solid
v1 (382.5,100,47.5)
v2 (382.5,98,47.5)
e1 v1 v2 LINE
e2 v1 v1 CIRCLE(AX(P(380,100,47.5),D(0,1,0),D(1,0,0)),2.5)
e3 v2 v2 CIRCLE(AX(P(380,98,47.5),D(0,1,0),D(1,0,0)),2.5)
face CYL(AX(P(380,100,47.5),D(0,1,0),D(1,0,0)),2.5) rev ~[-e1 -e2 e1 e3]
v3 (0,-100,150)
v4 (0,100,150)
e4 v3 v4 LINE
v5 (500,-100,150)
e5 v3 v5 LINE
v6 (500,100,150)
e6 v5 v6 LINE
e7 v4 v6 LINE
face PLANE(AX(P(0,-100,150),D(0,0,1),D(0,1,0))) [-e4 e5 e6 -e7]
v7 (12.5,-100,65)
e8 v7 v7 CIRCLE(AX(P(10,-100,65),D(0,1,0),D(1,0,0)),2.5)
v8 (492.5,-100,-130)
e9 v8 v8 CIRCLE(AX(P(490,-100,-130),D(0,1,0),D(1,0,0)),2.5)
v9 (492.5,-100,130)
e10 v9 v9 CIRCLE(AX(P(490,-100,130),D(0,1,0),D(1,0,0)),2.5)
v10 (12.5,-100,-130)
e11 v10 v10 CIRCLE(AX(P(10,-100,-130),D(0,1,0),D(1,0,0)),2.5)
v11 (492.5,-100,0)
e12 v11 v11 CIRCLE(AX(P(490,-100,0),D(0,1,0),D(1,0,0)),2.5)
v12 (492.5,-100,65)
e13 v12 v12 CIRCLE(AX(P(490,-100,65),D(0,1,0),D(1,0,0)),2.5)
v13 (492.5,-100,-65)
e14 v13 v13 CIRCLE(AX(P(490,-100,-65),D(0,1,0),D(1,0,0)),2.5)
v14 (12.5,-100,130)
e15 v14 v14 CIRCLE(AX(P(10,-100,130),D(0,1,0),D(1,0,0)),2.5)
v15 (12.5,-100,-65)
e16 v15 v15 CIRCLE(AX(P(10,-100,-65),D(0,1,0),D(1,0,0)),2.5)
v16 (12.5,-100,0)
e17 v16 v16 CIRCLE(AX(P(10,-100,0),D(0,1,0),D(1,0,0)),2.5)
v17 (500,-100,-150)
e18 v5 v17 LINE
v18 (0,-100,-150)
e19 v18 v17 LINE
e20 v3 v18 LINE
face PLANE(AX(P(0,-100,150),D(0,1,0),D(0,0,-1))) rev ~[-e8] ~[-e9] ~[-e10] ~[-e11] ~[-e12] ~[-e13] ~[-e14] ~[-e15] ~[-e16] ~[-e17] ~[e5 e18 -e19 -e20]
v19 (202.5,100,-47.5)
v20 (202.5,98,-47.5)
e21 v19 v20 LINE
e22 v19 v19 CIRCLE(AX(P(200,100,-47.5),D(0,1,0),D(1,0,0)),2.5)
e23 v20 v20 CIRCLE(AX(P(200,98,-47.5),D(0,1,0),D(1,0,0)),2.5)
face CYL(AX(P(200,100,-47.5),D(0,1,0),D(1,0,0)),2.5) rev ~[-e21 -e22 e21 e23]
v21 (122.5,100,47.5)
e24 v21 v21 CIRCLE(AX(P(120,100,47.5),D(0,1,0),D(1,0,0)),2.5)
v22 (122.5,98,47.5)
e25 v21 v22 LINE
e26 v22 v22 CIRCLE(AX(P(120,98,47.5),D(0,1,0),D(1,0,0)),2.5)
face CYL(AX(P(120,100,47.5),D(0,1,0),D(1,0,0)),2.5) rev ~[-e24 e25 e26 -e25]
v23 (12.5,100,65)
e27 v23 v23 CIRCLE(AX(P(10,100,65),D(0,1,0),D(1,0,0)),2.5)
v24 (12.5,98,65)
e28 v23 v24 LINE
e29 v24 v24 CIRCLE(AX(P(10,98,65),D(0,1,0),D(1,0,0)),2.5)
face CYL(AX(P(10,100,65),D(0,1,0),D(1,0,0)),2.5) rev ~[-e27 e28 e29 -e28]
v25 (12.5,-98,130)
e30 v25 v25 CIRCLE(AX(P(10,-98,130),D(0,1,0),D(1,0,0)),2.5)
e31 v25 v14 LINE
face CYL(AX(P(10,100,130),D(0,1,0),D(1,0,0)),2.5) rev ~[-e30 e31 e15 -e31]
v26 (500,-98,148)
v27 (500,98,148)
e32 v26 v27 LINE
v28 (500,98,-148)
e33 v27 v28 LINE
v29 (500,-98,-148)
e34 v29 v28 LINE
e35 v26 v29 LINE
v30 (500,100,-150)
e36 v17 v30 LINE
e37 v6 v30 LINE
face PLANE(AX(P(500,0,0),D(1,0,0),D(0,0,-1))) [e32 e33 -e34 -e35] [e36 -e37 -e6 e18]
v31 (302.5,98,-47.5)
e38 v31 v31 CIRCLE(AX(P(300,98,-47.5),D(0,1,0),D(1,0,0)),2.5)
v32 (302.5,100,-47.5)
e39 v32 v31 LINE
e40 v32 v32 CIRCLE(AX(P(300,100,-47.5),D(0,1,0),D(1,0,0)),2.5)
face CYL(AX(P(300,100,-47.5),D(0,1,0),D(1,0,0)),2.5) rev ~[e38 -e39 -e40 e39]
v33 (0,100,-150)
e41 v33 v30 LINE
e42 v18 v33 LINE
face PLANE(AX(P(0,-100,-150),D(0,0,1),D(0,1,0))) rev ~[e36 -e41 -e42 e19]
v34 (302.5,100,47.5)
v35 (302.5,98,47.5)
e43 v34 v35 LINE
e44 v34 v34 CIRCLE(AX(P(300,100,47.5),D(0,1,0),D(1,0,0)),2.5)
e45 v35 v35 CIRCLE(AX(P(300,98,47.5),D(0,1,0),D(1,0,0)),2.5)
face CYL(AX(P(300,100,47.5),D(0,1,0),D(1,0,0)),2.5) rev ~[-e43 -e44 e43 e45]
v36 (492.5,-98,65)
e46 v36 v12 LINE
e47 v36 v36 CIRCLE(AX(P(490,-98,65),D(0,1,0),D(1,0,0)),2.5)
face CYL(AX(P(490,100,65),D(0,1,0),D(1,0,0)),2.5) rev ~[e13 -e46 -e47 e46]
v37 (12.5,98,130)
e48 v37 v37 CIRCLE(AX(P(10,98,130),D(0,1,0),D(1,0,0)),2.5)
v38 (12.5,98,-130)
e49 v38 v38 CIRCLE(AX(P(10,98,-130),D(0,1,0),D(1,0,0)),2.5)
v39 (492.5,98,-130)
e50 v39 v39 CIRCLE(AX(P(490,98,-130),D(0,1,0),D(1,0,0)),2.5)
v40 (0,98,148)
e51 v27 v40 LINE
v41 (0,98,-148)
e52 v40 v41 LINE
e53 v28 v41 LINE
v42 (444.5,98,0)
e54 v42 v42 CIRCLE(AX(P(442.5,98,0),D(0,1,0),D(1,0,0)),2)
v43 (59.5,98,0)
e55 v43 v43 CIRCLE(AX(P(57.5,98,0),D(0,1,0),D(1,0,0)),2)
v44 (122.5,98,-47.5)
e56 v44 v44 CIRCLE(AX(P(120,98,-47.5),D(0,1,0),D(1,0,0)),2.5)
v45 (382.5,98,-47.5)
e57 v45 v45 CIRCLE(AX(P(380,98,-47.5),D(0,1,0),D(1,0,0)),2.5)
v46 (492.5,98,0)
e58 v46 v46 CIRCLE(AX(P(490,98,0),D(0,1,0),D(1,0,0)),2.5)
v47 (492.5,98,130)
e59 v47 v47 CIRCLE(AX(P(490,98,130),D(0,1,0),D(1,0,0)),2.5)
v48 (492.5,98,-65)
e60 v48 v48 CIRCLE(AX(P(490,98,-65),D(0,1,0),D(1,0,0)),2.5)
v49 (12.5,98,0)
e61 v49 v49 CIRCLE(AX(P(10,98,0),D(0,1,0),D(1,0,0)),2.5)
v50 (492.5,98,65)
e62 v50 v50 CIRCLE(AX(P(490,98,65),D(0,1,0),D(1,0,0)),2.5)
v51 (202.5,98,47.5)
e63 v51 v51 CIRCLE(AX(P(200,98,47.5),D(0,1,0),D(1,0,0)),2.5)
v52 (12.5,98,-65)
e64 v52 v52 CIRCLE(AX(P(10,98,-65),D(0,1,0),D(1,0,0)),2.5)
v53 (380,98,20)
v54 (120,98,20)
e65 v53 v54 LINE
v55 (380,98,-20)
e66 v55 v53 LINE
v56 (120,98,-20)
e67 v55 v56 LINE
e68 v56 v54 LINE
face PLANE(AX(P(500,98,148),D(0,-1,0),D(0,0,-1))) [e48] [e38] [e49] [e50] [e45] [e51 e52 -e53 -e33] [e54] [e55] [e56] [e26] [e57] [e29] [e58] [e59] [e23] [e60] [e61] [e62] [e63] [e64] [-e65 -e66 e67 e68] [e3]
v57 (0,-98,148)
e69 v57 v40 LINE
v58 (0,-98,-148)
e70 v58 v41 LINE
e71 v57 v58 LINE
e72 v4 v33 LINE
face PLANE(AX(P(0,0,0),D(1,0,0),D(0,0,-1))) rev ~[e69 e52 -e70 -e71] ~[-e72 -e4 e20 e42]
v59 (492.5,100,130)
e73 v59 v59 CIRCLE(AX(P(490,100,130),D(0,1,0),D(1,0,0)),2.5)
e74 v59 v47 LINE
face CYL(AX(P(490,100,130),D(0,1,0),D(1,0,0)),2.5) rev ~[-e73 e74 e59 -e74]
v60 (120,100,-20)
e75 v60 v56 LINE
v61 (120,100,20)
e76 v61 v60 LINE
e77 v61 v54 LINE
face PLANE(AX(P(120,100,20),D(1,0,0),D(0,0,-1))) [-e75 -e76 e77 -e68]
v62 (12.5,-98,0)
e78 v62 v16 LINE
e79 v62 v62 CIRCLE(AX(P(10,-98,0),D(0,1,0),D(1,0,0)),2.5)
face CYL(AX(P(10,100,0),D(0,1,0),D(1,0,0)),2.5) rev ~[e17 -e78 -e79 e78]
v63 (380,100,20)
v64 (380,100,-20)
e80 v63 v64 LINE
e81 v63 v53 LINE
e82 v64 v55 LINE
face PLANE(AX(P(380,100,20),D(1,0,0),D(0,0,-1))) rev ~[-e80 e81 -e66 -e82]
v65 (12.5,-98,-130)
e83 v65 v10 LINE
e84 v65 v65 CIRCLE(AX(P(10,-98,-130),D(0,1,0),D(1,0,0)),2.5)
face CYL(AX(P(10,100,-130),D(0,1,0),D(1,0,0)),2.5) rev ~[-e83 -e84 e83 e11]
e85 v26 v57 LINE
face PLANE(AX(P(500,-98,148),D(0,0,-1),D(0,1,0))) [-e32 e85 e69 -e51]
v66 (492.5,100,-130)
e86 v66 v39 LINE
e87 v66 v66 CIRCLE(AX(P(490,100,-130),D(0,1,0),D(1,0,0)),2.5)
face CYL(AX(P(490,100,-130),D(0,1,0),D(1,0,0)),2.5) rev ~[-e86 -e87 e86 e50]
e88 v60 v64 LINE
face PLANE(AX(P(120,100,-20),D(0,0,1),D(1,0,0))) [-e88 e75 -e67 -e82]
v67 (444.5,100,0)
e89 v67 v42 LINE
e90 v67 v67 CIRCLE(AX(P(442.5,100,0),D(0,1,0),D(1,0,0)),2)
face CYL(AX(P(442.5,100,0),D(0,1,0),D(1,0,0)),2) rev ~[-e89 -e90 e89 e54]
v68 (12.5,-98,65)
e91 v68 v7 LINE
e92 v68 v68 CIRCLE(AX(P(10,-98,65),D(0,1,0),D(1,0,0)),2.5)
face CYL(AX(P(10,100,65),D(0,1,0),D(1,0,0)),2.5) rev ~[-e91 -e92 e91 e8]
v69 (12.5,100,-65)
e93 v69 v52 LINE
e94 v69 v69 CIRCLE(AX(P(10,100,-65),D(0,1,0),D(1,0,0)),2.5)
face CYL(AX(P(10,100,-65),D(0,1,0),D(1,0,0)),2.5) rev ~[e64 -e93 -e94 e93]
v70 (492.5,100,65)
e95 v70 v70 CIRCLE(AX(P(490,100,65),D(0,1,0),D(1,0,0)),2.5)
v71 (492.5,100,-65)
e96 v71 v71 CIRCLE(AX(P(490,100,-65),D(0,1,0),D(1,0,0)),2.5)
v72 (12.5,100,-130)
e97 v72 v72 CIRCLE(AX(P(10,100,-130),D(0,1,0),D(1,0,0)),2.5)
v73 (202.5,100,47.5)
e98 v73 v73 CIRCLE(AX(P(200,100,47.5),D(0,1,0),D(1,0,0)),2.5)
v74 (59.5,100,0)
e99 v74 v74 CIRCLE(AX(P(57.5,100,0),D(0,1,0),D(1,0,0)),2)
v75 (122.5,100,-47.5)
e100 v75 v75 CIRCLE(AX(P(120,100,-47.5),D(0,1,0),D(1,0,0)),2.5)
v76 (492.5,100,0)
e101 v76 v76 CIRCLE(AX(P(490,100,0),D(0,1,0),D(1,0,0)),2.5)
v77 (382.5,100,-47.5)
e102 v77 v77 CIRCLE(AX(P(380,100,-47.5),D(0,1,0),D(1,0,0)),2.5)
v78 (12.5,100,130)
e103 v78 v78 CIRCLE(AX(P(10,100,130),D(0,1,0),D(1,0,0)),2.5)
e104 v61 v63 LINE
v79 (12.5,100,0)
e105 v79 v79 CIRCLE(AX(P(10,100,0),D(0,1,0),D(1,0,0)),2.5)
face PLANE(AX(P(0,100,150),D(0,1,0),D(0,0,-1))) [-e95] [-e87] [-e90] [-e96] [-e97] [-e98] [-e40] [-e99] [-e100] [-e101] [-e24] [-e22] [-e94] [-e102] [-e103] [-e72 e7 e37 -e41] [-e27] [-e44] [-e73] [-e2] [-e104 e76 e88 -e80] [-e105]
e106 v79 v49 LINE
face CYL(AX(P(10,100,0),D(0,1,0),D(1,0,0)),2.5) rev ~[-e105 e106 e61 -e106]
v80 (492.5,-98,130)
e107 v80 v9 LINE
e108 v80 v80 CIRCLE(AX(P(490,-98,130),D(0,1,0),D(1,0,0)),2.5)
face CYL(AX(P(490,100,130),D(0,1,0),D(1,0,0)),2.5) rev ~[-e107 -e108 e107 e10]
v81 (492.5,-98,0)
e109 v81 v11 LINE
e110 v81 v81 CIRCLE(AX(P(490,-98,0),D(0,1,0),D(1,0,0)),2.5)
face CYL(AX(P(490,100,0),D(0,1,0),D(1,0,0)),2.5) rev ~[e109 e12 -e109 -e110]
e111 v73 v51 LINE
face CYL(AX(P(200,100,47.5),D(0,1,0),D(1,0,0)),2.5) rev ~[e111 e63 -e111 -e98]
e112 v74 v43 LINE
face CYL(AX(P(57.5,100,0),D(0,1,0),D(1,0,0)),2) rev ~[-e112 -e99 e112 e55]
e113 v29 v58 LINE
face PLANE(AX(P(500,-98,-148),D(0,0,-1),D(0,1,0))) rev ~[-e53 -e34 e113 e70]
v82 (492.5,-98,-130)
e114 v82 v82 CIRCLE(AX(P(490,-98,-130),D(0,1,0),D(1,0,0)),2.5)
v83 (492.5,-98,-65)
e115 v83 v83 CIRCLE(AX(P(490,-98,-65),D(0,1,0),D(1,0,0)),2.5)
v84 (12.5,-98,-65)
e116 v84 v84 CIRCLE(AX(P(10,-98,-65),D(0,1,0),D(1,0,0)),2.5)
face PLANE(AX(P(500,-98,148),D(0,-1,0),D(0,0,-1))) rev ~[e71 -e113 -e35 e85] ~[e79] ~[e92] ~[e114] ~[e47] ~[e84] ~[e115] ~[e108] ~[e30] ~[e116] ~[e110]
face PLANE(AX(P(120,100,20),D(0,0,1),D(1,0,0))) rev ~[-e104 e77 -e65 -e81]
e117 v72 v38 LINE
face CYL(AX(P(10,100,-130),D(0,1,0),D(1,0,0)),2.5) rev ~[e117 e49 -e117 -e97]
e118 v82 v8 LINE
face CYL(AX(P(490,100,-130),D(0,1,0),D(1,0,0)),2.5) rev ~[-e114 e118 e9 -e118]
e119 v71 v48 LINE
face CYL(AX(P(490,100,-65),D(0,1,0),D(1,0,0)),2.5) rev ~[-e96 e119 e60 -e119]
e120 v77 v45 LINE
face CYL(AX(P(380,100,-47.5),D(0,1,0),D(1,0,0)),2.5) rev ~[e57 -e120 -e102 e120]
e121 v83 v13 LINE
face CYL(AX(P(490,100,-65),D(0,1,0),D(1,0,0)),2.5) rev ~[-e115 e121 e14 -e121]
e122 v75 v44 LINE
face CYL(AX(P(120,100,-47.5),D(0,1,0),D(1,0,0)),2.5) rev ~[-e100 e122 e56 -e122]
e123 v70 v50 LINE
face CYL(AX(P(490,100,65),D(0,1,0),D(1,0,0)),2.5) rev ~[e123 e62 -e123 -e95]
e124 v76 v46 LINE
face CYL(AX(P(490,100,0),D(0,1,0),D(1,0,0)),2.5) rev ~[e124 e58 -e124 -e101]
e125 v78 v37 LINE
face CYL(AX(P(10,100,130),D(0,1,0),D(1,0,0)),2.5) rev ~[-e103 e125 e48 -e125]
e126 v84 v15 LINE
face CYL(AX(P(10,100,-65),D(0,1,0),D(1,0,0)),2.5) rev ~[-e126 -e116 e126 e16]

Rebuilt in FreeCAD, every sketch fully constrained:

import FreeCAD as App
import Part
import Sketcher

V = App.Vector


def add_polygon(sketch, points):
    """Adds a closed chain of lines whose ends are joined by coincident constraints."""
    first, n = sketch.GeometryCount, len(points)
    for a, b in zip(points, points[1:] + points[:1]):
        sketch.addGeometry(Part.LineSegment(App.Vector(*a, 0), App.Vector(*b, 0)), False)
    for i in range(n):
        sketch.addConstraint(Sketcher.Constraint("Coincident", first + i, 2, first + (i + 1) % n, 1))

doc = App.newDocument("Part")
body = doc.addObject("PartDesign::Body", "Body")

# Sketch on YZ plane
sketch1 = doc.addObject("Sketcher::SketchObject", "Sketch")
body.addObject(sketch1)
sketch1.AttachmentSupport = (doc.YZ_Plane, [""])
sketch1.MapMode = "FlatFace"
add_polygon(sketch1, [(100, 150), (-100, 150), (-100, -150), (100, -150)])  # lines 0-3
sketch1.addConstraint(Sketcher.Constraint("Horizontal", 0))
sketch1.addConstraint(Sketcher.Constraint("Vertical", 1))
sketch1.addConstraint(Sketcher.Constraint("Horizontal", 2))
sketch1.addConstraint(Sketcher.Constraint("Vertical", 3))
sketch1.addConstraint(Sketcher.Constraint("Symmetric", 0, 2, 2, 2, -1, 1))
sketch1.addConstraint(Sketcher.Constraint("DistanceX", 0, 2, 0, 1, 200.0))
sketch1.addConstraint(Sketcher.Constraint("DistanceY", 1, 2, 1, 1, 300.0))
pad1 = doc.addObject("PartDesign::Pad", "Pad")
body.addObject(pad1)
pad1.Profile = sketch1
pad1.Length = 500

# Sketch on YZ plane
sketch2 = doc.addObject("Sketcher::SketchObject", "Sketch001")
body.addObject(sketch2)
sketch2.AttachmentSupport = (doc.YZ_Plane, [""])
sketch2.MapMode = "FlatFace"
sketch2.AttachmentOffset = App.Placement(V(0, 0, 500), App.Rotation())
add_polygon(sketch2, [(98, 148), (-98, 148), (-98, -148), (98, -148)])  # lines 0-3
sketch2.addConstraint(Sketcher.Constraint("Horizontal", 0))
sketch2.addConstraint(Sketcher.Constraint("Vertical", 1))
sketch2.addConstraint(Sketcher.Constraint("Horizontal", 2))
sketch2.addConstraint(Sketcher.Constraint("Vertical", 3))
sketch2.addConstraint(Sketcher.Constraint("Symmetric", 0, 2, 2, 2, -1, 1))
sketch2.addConstraint(Sketcher.Constraint("DistanceX", 0, 2, 0, 1, 196.0))
sketch2.addConstraint(Sketcher.Constraint("DistanceY", 1, 2, 1, 1, 296.0))
pocket1 = doc.addObject("PartDesign::Pocket", "Pocket")
body.addObject(pocket1)
pocket1.Profile = sketch2
pocket1.Type = "ThroughAll"

# Sketch on XZ plane
sketch3 = doc.addObject("Sketcher::SketchObject", "Sketch002")
body.addObject(sketch3)
sketch3.AttachmentSupport = (doc.XZ_Plane, [""])
sketch3.MapMode = "FlatFace"
sketch3.AttachmentOffset = App.Placement(V(0, 0, -100), App.Rotation())
sketch3.addGeometry(Part.Circle(V(57.5, 0, 0), V(0, 0, 1), 2), False)  # 0
sketch3.addGeometry(Part.Circle(V(442.5, 0, 0), V(0, 0, 1), 2), False)  # 1
sketch3.addGeometry(Part.Circle(V(120, -47.5, 0), V(0, 0, 1), 2.5), False)  # 2
sketch3.addGeometry(Part.Circle(V(200, -47.5, 0), V(0, 0, 1), 2.5), False)  # 3
sketch3.addGeometry(Part.Circle(V(300, -47.5, 0), V(0, 0, 1), 2.5), False)  # 4
sketch3.addGeometry(Part.Circle(V(380, -47.5, 0), V(0, 0, 1), 2.5), False)  # 5
sketch3.addGeometry(Part.Circle(V(380, 47.5, 0), V(0, 0, 1), 2.5), False)  # 6
sketch3.addGeometry(Part.Circle(V(300, 47.5, 0), V(0, 0, 1), 2.5), False)  # 7
sketch3.addGeometry(Part.Circle(V(200, 47.5, 0), V(0, 0, 1), 2.5), False)  # 8
sketch3.addGeometry(Part.Circle(V(120, 47.5, 0), V(0, 0, 1), 2.5), False)  # 9
add_polygon(sketch3, [(120, -20), (120, 20), (380, 20), (380, -20)])  # lines 10-13
sketch3.addConstraint(Sketcher.Constraint("Vertical", 10))
sketch3.addConstraint(Sketcher.Constraint("Horizontal", 11))
sketch3.addConstraint(Sketcher.Constraint("Vertical", 12))
sketch3.addConstraint(Sketcher.Constraint("Horizontal", 13))
sketch3.addConstraint(Sketcher.Constraint("Equal", 0, 1))
sketch3.addConstraint(Sketcher.Constraint("Equal", 2, 3))
sketch3.addConstraint(Sketcher.Constraint("Equal", 3, 4))
sketch3.addConstraint(Sketcher.Constraint("Equal", 4, 5))
sketch3.addConstraint(Sketcher.Constraint("Equal", 5, 6))
sketch3.addConstraint(Sketcher.Constraint("Equal", 6, 7))
sketch3.addConstraint(Sketcher.Constraint("Equal", 7, 8))
sketch3.addConstraint(Sketcher.Constraint("Equal", 8, 9))
sketch3.addConstraint(Sketcher.Constraint("Symmetric", 5, 3, 6, 3, -1))
sketch3.addConstraint(Sketcher.Constraint("Symmetric", 4, 3, 7, 3, -1))
sketch3.addConstraint(Sketcher.Constraint("Symmetric", 3, 3, 8, 3, -1))
sketch3.addConstraint(Sketcher.Constraint("Symmetric", 2, 3, 9, 3, -1))
sketch3.addConstraint(Sketcher.Constraint("PointOnObject", 0, 3, -1))
sketch3.addConstraint(Sketcher.Constraint("PointOnObject", 1, 3, -1))
sketch3.addConstraint(Sketcher.Constraint("Horizontal", 2, 3, 3, 3))
sketch3.addConstraint(Sketcher.Constraint("Horizontal", 3, 3, 4, 3))
sketch3.addConstraint(Sketcher.Constraint("Horizontal", 4, 3, 5, 3))
sketch3.addConstraint(Sketcher.Constraint("Vertical", 9, 3, 10, 2))
sketch3.addConstraint(Sketcher.Constraint("Vertical", 6, 3, 11, 2))
sketch3.addConstraint(Sketcher.Constraint("Diameter", 0, 4.0))
sketch3.addConstraint(Sketcher.Constraint("Diameter", 2, 5.0))
sketch3.addConstraint(Sketcher.Constraint("DistanceX", 11, 1, 11, 2, 260.0))
sketch3.addConstraint(Sketcher.Constraint("DistanceY", 10, 1, 10, 2, 40.0))
sketch3.addConstraint(Sketcher.Constraint("DistanceX", -1, 1, 2, 3, 120.0))
sketch3.addConstraint(Sketcher.Constraint("DistanceX", -1, 1, 3, 3, 200.0))
sketch3.addConstraint(Sketcher.Constraint("DistanceX", -1, 1, 4, 3, 300.0))
sketch3.addConstraint(Sketcher.Constraint("DistanceY", -1, 1, 10, 2, 20.0))
sketch3.addConstraint(Sketcher.Constraint("DistanceX", 0, 3, 1, 3, 385.0))
sketch3.addConstraint(Sketcher.Constraint("DistanceY", 5, 3, 6, 3, 95.0))
sketch3.addConstraint(Sketcher.Constraint("DistanceX", -1, 1, 0, 3, 57.5))
pocket2 = doc.addObject("PartDesign::Pocket", "Pocket001")
body.addObject(pocket2)
pocket2.Profile = sketch3
pocket2.Length = 10
pocket2.Reversed = True

# Sketch on XZ plane
sketch4 = doc.addObject("Sketcher::SketchObject", "Sketch003")
body.addObject(sketch4)
sketch4.AttachmentSupport = (doc.XZ_Plane, [""])
sketch4.MapMode = "FlatFace"
sketch4.AttachmentOffset = App.Placement(V(0, 0, -100), App.Rotation())
sketch4.addGeometry(Part.Circle(V(490, -130, 0), V(0, 0, 1), 2.5), False)
sketch4.addGeometry(Part.Circle(V(490, -65, 0), V(0, 0, 1), 2.5), False)
sketch4.addGeometry(Part.Circle(V(490, 0, 0), V(0, 0, 1), 2.5), False)
sketch4.addGeometry(Part.Circle(V(490, 65, 0), V(0, 0, 1), 2.5), False)
sketch4.addGeometry(Part.Circle(V(490, 130, 0), V(0, 0, 1), 2.5), False)
sketch4.addGeometry(Part.Circle(V(10, 130, 0), V(0, 0, 1), 2.5), False)
sketch4.addGeometry(Part.Circle(V(10, 65, 0), V(0, 0, 1), 2.5), False)
sketch4.addGeometry(Part.Circle(V(10, 0, 0), V(0, 0, 1), 2.5), False)
sketch4.addGeometry(Part.Circle(V(10, -65, 0), V(0, 0, 1), 2.5), False)
sketch4.addGeometry(Part.Circle(V(10, -130, 0), V(0, 0, 1), 2.5), False)
sketch4.addConstraint(Sketcher.Constraint("Equal", 0, 1))
sketch4.addConstraint(Sketcher.Constraint("Equal", 1, 2))
sketch4.addConstraint(Sketcher.Constraint("Equal", 2, 3))
sketch4.addConstraint(Sketcher.Constraint("Equal", 3, 4))
sketch4.addConstraint(Sketcher.Constraint("Equal", 4, 5))
sketch4.addConstraint(Sketcher.Constraint("Equal", 5, 6))
sketch4.addConstraint(Sketcher.Constraint("Equal", 6, 7))
sketch4.addConstraint(Sketcher.Constraint("Equal", 7, 8))
sketch4.addConstraint(Sketcher.Constraint("Equal", 8, 9))
sketch4.addConstraint(Sketcher.Constraint("Symmetric", 1, 3, 3, 3, -1))
sketch4.addConstraint(Sketcher.Constraint("Symmetric", 0, 3, 4, 3, -1))
sketch4.addConstraint(Sketcher.Constraint("Symmetric", 6, 3, 8, 3, -1))
sketch4.addConstraint(Sketcher.Constraint("Symmetric", 5, 3, 9, 3, -1))
sketch4.addConstraint(Sketcher.Constraint("PointOnObject", 2, 3, -1))
sketch4.addConstraint(Sketcher.Constraint("PointOnObject", 7, 3, -1))
sketch4.addConstraint(Sketcher.Constraint("Horizontal", 4, 3, 5, 3))
sketch4.addConstraint(Sketcher.Constraint("Horizontal", 3, 3, 6, 3))
sketch4.addConstraint(Sketcher.Constraint("Vertical", 0, 3, 1, 3))
sketch4.addConstraint(Sketcher.Constraint("Vertical", 1, 3, 2, 3))
sketch4.addConstraint(Sketcher.Constraint("Vertical", 5, 3, 6, 3))
sketch4.addConstraint(Sketcher.Constraint("Vertical", 6, 3, 7, 3))
sketch4.addConstraint(Sketcher.Constraint("Diameter", 0, 5.0))
sketch4.addConstraint(Sketcher.Constraint("DistanceX", -1, 1, 0, 3, 490.0))
sketch4.addConstraint(Sketcher.Constraint("DistanceY", 0, 3, -1, 1, 130.0))
sketch4.addConstraint(Sketcher.Constraint("DistanceY", 1, 3, -1, 1, 65.0))
sketch4.addConstraint(Sketcher.Constraint("DistanceX", -1, 1, 5, 3, 10.0))
pocket3 = doc.addObject("PartDesign::Pocket", "Pocket002")
body.addObject(pocket3)
pocket3.Profile = sketch4
pocket3.Type = "ThroughAll"
pocket3.Reversed = True

doc.recompute()
